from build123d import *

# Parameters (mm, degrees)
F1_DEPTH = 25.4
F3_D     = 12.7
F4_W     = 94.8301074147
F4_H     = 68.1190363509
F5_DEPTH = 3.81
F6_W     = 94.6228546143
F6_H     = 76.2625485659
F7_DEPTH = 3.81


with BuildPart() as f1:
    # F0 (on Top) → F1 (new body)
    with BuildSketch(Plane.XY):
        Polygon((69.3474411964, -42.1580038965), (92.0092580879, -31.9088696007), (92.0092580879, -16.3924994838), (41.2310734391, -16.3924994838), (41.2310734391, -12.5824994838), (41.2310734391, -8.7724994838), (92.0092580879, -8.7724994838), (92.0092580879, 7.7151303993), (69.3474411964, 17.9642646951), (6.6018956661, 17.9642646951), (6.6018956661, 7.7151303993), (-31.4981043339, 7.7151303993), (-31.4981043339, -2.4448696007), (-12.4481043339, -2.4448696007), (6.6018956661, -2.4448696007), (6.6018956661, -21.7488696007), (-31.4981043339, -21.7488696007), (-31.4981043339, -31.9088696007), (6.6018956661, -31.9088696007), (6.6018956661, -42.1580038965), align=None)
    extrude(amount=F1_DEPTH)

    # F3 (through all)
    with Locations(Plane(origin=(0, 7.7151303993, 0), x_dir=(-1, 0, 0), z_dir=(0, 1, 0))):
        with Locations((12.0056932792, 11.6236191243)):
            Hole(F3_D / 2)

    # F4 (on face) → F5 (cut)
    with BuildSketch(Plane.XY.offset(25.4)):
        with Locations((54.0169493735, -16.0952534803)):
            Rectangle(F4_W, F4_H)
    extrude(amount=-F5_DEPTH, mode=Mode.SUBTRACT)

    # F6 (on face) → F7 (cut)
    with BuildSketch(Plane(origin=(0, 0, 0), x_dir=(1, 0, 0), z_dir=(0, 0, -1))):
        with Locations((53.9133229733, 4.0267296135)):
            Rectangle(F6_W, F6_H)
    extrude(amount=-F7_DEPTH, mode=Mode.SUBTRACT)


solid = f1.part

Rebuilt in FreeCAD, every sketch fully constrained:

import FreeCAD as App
import Part
import Sketcher
Q = App.Units.Quantity


def add_polygon(sketch, points):
    """Adds a closed chain of lines whose ends are joined by coincident constraints."""
    first, n = sketch.GeometryCount, len(points)
    for a, b in zip(points, points[1:] + points[:1]):
        sketch.addGeometry(Part.LineSegment(App.Vector(*a, 0), App.Vector(*b, 0)), False)
    for i in range(n):
        sketch.addConstraint(Sketcher.Constraint("Coincident", first + i, 2, first + (i + 1) % n, 1))

doc = App.newDocument("Part")
params = doc.addObject("Spreadsheet::Sheet", "Params")
for row, (alias, value) in enumerate([
    ("sketch1_width", "1.5 in"),
    ("sketch1_height", "0.3 in"),
    ("sketch1_height2", "0.4 in"),
    ("sketch1_height3", "0.76 in"),
    ("pad1_length", "1 in"),
    ("sketch2_diameter", "0.5 in"),
    ("hole_diameter", "0.5 in"),
    ("pocket1_length", "0.15 in"),
    ("pocket2_length", "0.15 in"),
], start=1):
    params.set(f"A{row}", alias)
    params.set(f"B{row}", "=" + value)
    params.setAlias(f"B{row}", alias)

body = doc.addObject("PartDesign::Body", "Body")

# Sketch on XY plane
sketch1 = body.newObject("Sketcher::SketchObject", "Sketch")
sketch1.AttachmentSupport = (doc.getObject("XY_Plane"), [""])
sketch1.MapMode = "FlatFace"
add_polygon(sketch1, [(69.347441, -42.158004), (92.009258, -31.90887), (92.009258, -16.392499), (41.231073, -16.392499), (41.231073, -8.772499), (92.009258, -8.772499), (92.009258, 7.71513), (69.347441, 17.964265), (6.601896, 17.964265), (6.601896, 7.71513), (-31.498104, 7.71513), (-31.498104, -2.44487), (6.601896, -2.44487), (6.601896, -21.74887), (-31.498104, -21.74887), (-31.498104, -31.90887), (6.601896, -31.90887), (6.601896, -42.158004)])  # lines 0-17
sketch1.addConstraint([
    Sketcher.Constraint("Vertical", 1),
    Sketcher.Constraint("Horizontal", 2),
    Sketcher.Constraint("Vertical", 3),
    Sketcher.Constraint("Horizontal", 4),
    Sketcher.Constraint("Vertical", 5),
    Sketcher.Constraint("Horizontal", 7),
    Sketcher.Constraint("Vertical", 8),
    Sketcher.Constraint("Horizontal", 9),
    Sketcher.Constraint("Vertical", 10),
    Sketcher.Constraint("Horizontal", 11),
    Sketcher.Constraint("Vertical", 12),
    Sketcher.Constraint("Horizontal", 13),
    Sketcher.Constraint("Vertical", 14),
    Sketcher.Constraint("Horizontal", 15),
    Sketcher.Constraint("Vertical", 16),
    Sketcher.Constraint("Horizontal", 17),
    Sketcher.Constraint("Horizontal", 5, 2, 8, 2),
    Sketcher.Constraint("Horizontal", 0, 2, 14, 2),
    Sketcher.Constraint("Vertical", 1, 2, 4, 2),
    Sketcher.Constraint("Vertical", 8, 2, 11, 2),
    Sketcher.Constraint("Vertical", 10, 2, 13, 2),
    Sketcher.Constraint("Vertical", 12, 2, 15, 2),
    Sketcher.Constraint("Vertical", 6, 2, 17, 2),
    Sketcher.Constraint("Equal", 10, 14),
    Sketcher.Constraint("Equal", 8, 16),
    Sketcher.Constraint("DistanceX", 9, 2, 9, 1, Q("1.5 in")),
    Sketcher.Constraint("DistanceY", 3, 1, 3, 2, Q("0.3 in")),
    Sketcher.Constraint("DistanceY", 10, 2, 10, 1, Q("0.4 in")),
    Sketcher.Constraint("DistanceY", 12, 2, 12, 1, Q("0.76 in")),
    Sketcher.Constraint("DistanceY", 1, 1, 1, 2, Q("15.51637 mm")),
    Sketcher.Constraint("DistanceY", 1, 2, -1, 1, Q("16.392499 mm")),
    Sketcher.Constraint("DistanceX", 2, 2, 2, 1, Q("50.778185 mm")),
    Sketcher.Constraint("DistanceX", 7, 2, 7, 1, Q("62.745546 mm")),
    Sketcher.Constraint("DistanceY", 8, 2, 8, 1, Q("10.249134 mm")),
    Sketcher.Constraint("DistanceX", -1, 1, 0, 2, Q("92.009258 mm")),
    Sketcher.Constraint("DistanceX", -1, 1, 6, 2, Q("69.347441 mm")),
])
sketch1.setExpression("Constraints[43]", "Params.sketch1_width")
sketch1.setExpression("Constraints[44]", "Params.sketch1_height")
sketch1.setExpression("Constraints[45]", "Params.sketch1_height2")
sketch1.setExpression("Constraints[46]", "Params.sketch1_height3")
pad1 = body.newObject("PartDesign::Pad", "Pad")
pad1.Profile = sketch1
pad1.setExpression("Length", "Params.pad1_length")

# Sketch on XZ plane
sketch2 = body.newObject("Sketcher::SketchObject", "Sketch001")
sketch2.AttachmentSupport = (doc.getObject("XZ_Plane"), [""])
sketch2.MapMode = "FlatFace"
sketch2.AttachmentOffset = App.Placement(App.Vector(0, 0, -7.71513), App.Rotation())
sketch2.addGeometry(Part.Circle(App.Vector(-12.005693, 11.623619, 0), App.Vector(0, 0, 1), 6.35), False)
sketch2.addConstraint([
    Sketcher.Constraint("Diameter", 0, Q("0.5 in")),
    Sketcher.Constraint("DistanceY", -1, 1, 0, 3, Q("11.623619 mm")),
    Sketcher.Constraint("DistanceX", 0, 3, -1, 1, Q("12.005693 mm")),
])
sketch2.setExpression("Constraints[0]", "Params.sketch2_diameter")
doc.recompute()
hole = body.newObject("PartDesign::Hole", "Hole")
hole.Profile = sketch2
hole.ThreadType = "None"
hole.setExpression("Diameter", "Params.hole_diameter")
hole.DepthType = "ThroughAll"
hole.Reversed = True

# Sketch on XY plane
sketch3 = body.newObject("Sketcher::SketchObject", "Sketch002")
sketch3.AttachmentSupport = (doc.getObject("XY_Plane"), [""])
sketch3.MapMode = "FlatFace"
sketch3.AttachmentOffset = App.Placement(App.Vector(0, 0, 1 * 25.4), App.Rotation())
add_polygon(sketch3, [(6.601896, 17.964265), (6.601896, -50.154772), (101.432003, -50.154772), (101.432003, 17.964265)])  # lines 0-3
sketch3.addConstraint([
    Sketcher.Constraint("Vertical", 0),
    Sketcher.Constraint("Horizontal", 1),
    Sketcher.Constraint("Vertical", 2),
    Sketcher.Constraint("Horizontal", 3),
    Sketcher.Constraint("DistanceX", 1, 1, 1, 2, Q("94.830107 mm")),
    Sketcher.Constraint("DistanceY", 0, 2, 0, 1, Q("68.119036 mm")),
    Sketcher.Constraint("DistanceY", 0, 2, -1, 1, Q("50.154772 mm")),
    Sketcher.Constraint("DistanceX", -1, 1, 0, 2, Q("6.601896 mm")),
])
pocket1 = body.newObject("PartDesign::Pocket", "Pocket")
pocket1.Profile = sketch3
pocket1.setExpression("Length", "Params.pocket1_length")

# Sketch on XY plane
sketch4 = body.newObject("Sketcher::SketchObject", "Sketch003")
sketch4.AttachmentSupport = (doc.getObject("XY_Plane"), [""])
sketch4.MapMode = "FlatFace"
add_polygon(sketch4, [(6.601896, -42.158004), (6.601896, 34.104545), (101.22475, 34.104545), (101.22475, -42.158004)])  # lines 0-3
sketch4.addConstraint([
    Sketcher.Constraint("Vertical", 0),
    Sketcher.Constraint("Horizontal", 1),
    Sketcher.Constraint("Vertical", 2),
    Sketcher.Constraint("Horizontal", 3),
    Sketcher.Constraint("DistanceY", 0, 1, 0, 2, Q("76.262549 mm")),
    Sketcher.Constraint("DistanceX", 1, 1, 1, 2, Q("94.622855 mm")),
    Sketcher.Constraint("DistanceX", -1, 1, 1, 2, Q("101.22475 mm")),
    Sketcher.Constraint("DistanceY", -1, 1, 0, 2, Q("34.104545 mm")),
])
pocket2 = body.newObject("PartDesign::Pocket", "Pocket001")
pocket2.Profile = sketch4
pocket2.setExpression("Length", "Params.pocket2_length")
pocket2.Reversed = True

doc.recompute()
